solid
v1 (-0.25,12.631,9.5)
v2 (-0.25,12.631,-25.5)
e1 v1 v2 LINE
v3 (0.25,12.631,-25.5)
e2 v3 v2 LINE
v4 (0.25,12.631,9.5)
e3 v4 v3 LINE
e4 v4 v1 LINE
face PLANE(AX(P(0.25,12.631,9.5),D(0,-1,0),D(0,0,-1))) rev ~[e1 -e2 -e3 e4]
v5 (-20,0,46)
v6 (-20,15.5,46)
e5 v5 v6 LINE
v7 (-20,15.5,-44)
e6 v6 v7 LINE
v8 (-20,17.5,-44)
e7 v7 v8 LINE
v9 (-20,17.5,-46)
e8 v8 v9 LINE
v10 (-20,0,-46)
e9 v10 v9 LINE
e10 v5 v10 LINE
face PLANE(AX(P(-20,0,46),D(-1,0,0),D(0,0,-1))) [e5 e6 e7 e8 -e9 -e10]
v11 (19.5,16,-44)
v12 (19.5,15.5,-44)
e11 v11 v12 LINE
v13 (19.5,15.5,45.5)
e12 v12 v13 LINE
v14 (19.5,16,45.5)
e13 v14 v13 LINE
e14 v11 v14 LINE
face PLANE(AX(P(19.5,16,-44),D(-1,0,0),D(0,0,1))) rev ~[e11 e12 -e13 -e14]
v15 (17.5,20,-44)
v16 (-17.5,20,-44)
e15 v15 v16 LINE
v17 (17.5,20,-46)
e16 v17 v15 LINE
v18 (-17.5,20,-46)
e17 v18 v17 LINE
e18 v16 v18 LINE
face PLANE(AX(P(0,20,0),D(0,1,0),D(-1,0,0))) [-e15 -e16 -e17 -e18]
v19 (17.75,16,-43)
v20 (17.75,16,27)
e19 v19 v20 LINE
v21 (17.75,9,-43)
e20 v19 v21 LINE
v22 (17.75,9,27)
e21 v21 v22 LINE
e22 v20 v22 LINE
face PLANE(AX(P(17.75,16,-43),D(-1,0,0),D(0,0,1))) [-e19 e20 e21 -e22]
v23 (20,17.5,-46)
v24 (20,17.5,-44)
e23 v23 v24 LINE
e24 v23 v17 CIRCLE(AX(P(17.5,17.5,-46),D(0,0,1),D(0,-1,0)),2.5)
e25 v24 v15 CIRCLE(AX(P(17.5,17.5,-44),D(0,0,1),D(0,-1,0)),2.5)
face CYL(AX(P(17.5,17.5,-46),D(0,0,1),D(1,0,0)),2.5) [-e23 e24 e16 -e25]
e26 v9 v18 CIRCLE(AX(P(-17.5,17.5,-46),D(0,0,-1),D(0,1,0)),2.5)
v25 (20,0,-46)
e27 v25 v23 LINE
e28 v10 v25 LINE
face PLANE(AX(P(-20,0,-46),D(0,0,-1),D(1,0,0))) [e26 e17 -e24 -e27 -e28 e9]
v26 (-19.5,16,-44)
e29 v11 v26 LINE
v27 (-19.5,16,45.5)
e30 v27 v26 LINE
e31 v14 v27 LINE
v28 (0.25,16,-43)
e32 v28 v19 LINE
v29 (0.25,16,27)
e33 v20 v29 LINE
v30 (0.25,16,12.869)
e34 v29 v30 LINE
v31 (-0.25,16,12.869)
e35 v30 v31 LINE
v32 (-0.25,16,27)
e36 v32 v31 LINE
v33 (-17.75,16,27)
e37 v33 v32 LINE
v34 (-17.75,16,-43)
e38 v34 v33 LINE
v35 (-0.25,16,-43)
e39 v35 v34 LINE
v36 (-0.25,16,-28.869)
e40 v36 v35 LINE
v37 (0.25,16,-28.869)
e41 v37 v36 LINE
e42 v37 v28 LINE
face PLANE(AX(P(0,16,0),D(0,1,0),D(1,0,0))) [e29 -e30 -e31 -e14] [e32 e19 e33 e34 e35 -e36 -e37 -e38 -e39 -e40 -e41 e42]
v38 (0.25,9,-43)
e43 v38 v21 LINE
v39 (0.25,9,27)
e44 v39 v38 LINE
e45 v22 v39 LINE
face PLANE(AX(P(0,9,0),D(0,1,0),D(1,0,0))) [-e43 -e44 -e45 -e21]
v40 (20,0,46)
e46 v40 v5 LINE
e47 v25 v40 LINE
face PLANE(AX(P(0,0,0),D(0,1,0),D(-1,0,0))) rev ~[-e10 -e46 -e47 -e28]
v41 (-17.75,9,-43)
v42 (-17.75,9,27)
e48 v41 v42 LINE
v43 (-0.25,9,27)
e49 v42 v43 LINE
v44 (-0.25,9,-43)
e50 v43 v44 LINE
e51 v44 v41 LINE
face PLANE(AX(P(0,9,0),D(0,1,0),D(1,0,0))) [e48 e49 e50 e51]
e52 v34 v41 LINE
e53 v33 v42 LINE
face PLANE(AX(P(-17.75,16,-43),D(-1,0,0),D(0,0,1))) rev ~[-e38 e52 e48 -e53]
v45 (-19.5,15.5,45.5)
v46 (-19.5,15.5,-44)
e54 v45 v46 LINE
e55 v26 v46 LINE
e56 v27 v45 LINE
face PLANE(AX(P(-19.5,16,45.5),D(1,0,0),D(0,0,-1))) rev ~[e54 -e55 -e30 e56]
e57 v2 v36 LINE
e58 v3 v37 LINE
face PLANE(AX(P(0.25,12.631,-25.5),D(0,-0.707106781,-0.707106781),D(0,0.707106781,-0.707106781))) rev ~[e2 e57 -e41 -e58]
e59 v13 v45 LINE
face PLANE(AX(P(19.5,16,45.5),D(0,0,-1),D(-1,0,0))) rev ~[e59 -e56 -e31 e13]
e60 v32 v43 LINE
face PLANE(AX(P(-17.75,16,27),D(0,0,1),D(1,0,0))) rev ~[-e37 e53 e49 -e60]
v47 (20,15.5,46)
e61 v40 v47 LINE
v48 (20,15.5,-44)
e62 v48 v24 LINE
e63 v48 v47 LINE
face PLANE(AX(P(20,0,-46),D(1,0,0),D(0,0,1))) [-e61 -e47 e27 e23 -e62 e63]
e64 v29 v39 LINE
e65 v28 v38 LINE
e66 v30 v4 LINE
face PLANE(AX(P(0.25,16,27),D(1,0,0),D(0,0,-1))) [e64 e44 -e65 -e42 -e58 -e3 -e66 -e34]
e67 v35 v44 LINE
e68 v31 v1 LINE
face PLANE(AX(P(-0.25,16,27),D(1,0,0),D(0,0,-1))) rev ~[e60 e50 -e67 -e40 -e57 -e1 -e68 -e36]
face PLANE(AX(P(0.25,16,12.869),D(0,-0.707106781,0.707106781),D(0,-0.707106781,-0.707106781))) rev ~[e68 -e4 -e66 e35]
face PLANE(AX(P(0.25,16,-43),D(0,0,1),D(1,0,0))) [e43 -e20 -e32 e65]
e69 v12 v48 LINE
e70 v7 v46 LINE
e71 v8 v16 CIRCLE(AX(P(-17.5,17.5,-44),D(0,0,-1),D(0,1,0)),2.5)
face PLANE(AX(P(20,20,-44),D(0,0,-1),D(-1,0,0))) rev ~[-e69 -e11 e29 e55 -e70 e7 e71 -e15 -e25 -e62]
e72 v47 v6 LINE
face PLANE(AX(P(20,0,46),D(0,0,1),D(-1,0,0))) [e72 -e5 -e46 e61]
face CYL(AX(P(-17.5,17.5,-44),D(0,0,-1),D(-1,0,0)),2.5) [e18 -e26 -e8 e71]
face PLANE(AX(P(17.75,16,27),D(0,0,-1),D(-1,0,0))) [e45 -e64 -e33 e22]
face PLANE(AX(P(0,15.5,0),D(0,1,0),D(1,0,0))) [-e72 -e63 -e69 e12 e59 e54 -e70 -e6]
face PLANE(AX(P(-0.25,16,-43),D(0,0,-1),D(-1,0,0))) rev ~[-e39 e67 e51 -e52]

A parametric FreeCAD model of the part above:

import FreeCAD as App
import Part
import Sketcher
Q = App.Units.Quantity


def edges_at(feature, points):
    """Names of the edges that pass closest to the given points."""
    edges = feature.Shape.Edges
    near = lambda p: min(range(len(edges)), key=lambda i: edges[i].distToShape(Part.Vertex(*p))[0])
    return sorted({f"Edge{near(p) + 1}" for p in points})


def add_polygon(sketch, points):
    """Adds a closed chain of lines whose ends are joined by coincident constraints."""
    first, n = sketch.GeometryCount, len(points)
    for a, b in zip(points, points[1:] + points[:1]):
        sketch.addGeometry(Part.LineSegment(App.Vector(*a, 0), App.Vector(*b, 0)), False)
    for i in range(n):
        sketch.addConstraint(Sketcher.Constraint("Coincident", first + i, 2, first + (i + 1) % n, 1))

doc = App.newDocument("Part")
body = doc.addObject("PartDesign::Body", "Body")

# Sketch on XZ plane
sketch1 = doc.addObject("Sketcher::SketchObject", "Sketch")
body.addObject(sketch1)
sketch1.AttachmentSupport = (doc.XZ_Plane, [""])
sketch1.MapMode = "FlatFace"
add_polygon(sketch1, [(-20, 46), (20, 46), (20, -46), (-20, -46)])  # lines 0-3
sketch1.addConstraint([
    Sketcher.Constraint("Horizontal", 0),
    Sketcher.Constraint("Vertical", 1),
    Sketcher.Constraint("Horizontal", 2),
    Sketcher.Constraint("Vertical", 3),
    Sketcher.Constraint("Symmetric", 0, 2, 2, 2, -1, 1),
    Sketcher.Constraint("DistanceX", 0, 1, 0, 2, Q("40 mm")),
    Sketcher.Constraint("DistanceY", 1, 2, 1, 1, Q("92 mm")),
])
pad1 = doc.addObject("PartDesign::Pad", "Pad")
body.addObject(pad1)
pad1.Profile = sketch1
pad1.Length = 20
pad1.Reversed = True

# Sketch on XZ plane
sketch2 = doc.addObject("Sketcher::SketchObject", "Sketch001")
body.addObject(sketch2)
sketch2.AttachmentSupport = (doc.XZ_Plane, [""])
sketch2.MapMode = "FlatFace"
sketch2.AttachmentOffset = App.Placement(App.Vector(0, 0, -20), App.Rotation())
add_polygon(sketch2, [(20, -44), (-20, -44), (-20, 46), (20, 46)])  # lines 0-3
sketch2.addConstraint([
    Sketcher.Constraint("Horizontal", 0),
    Sketcher.Constraint("Vertical", 1),
    Sketcher.Constraint("Horizontal", 2),
    Sketcher.Constraint("Vertical", 3),
    Sketcher.Constraint("DistanceY", 1, 1, 1, 2, Q("90 mm")),
    Sketcher.Constraint("DistanceX", 0, 2, 0, 1, Q("40 mm")),
    Sketcher.Constraint("DistanceX", 0, 2, -1, 1, Q("20 mm")),
    Sketcher.Constraint("DistanceY", 0, 2, -1, 1, Q("44 mm")),
])
pocket1 = doc.addObject("PartDesign::Pocket", "Pocket")
body.addObject(pocket1)
pocket1.Profile = sketch2
pocket1.Length = 4
pocket1.Reversed = True

# Sketch on XZ plane
sketch3 = doc.addObject("Sketcher::SketchObject", "Sketch002")
body.addObject(sketch3)
sketch3.AttachmentSupport = (doc.XZ_Plane, [""])
sketch3.MapMode = "FlatFace"
sketch3.AttachmentOffset = App.Placement(App.Vector(0, 0, -16), App.Rotation())
add_polygon(sketch3, [(17.75, -43), (0.25, -43), (0.25, 27), (17.75, 27)])  # lines 0-3
add_polygon(sketch3, [(-17.75, -43), (-17.75, 27), (-0.25, 27), (-0.25, -43)])  # lines 4-7
sketch3.addConstraint([
    Sketcher.Constraint("Horizontal", 0),
    Sketcher.Constraint("Vertical", 1),
    Sketcher.Constraint("Horizontal", 2),
    Sketcher.Constraint("Vertical", 3),
    Sketcher.Constraint("Vertical", 4),
    Sketcher.Constraint("Horizontal", 5),
    Sketcher.Constraint("Vertical", 6),
    Sketcher.Constraint("Horizontal", 7),
    Sketcher.Constraint("Symmetric", 2, 2, 4, 2, -2),
    Sketcher.Constraint("Symmetric", 0, 2, 6, 2, -2),
    Sketcher.Constraint("DistanceY", 1, 1, 1, 2, Q("70 mm")),
    Sketcher.Constraint("DistanceX", 0, 2, 0, 1, Q("17.5 mm")),
    Sketcher.Constraint("DistanceY", 0, 2, -1, 1, Q("43 mm")),
    Sketcher.Constraint("DistanceX", 4, 2, 1, 2, Q("18 mm")),
])
pocket2 = doc.addObject("PartDesign::Pocket", "Pocket001")
body.addObject(pocket2)
pocket2.Profile = sketch3
pocket2.Length = 7
pocket2.Reversed = True

# Sketch on YZ plane
sketch4 = doc.addObject("Sketcher::SketchObject", "Sketch003")
body.addObject(sketch4)
sketch4.AttachmentSupport = (doc.YZ_Plane, [""])
sketch4.MapMode = "FlatFace"
sketch4.AttachmentOffset = App.Placement(App.Vector(0, 0, 0.25), App.Rotation())
add_polygon(sketch4, [(16, -28.869), (16, 12.869), (12.631, 9.5), (12.631, -25.5)])  # lines 0-3
sketch4.addConstraint([
    Sketcher.Constraint("Vertical", 0),
    Sketcher.Constraint("Vertical", 2),
    Sketcher.Constraint("Perpendicular", 1, 3),
    Sketcher.Constraint("Equal", 1, 3),
    Sketcher.Constraint("DistanceY", 2, 2, 2, 1, Q("35 mm")),
    Sketcher.Constraint("DistanceX", -1, 1, 0, 2, Q("16 mm")),
    Sketcher.Constraint("DistanceY", -1, 1, 1, 2, Q("9.5 mm")),
    Sketcher.Constraint("DistanceY", 0, 1, 0, 2, Q("41.738 mm")),
])
pocket3 = doc.addObject("PartDesign::Pocket", "Pocket002")
body.addObject(pocket3)
pocket3.Profile = sketch4
pocket3.Length = 0.5
doc.recompute()

fillet = doc.addObject("PartDesign::Fillet", "Fillet")
body.addObject(fillet)
fillet.Base = (pocket3, edges_at(pocket3, [(20, 20, -45), (-20, 20, -45)]))
fillet.Radius = 2.5

# Sketch on XZ plane
sketch5 = doc.addObject("Sketcher::SketchObject", "Sketch004")
body.addObject(sketch5)
sketch5.AttachmentSupport = (doc.XZ_Plane, [""])
sketch5.MapMode = "FlatFace"
sketch5.AttachmentOffset = App.Placement(App.Vector(0, 0, -16), App.Rotation())
add_polygon(sketch5, [(20, 46), (20, -44), (19.5, -44), (19.5, 45.5), (-19.5, 45.5), (-19.5, -44), (-20, -44), (-20, 46)])  # lines 0-7
sketch5.addConstraint([
    Sketcher.Constraint("Vertical", 0),
    Sketcher.Constraint("Horizontal", 1),
    Sketcher.Constraint("Vertical", 2),
    Sketcher.Constraint("Horizontal", 3),
    Sketcher.Constraint("Vertical", 4),
    Sketcher.Constraint("Horizontal", 5),
    Sketcher.Constraint("Vertical", 6),
    Sketcher.Constraint("Horizontal", 7),
    Sketcher.Constraint("Symmetric", 1, 2, 4, 2, -2),
    Sketcher.Constraint("Equal", 1, 5),
    Sketcher.Constraint("DistanceX", 1, 2, 1, 1, Q("0.5 mm")),
    Sketcher.Constraint("DistanceY", 3, 2, 6, 2, Q("0.5 mm")),
    Sketcher.Constraint("DistanceX", 3, 2, 3, 1, Q("39 mm")),
    Sketcher.Constraint("DistanceY", 0, 2, 0, 1, Q("90 mm")),
    Sketcher.Constraint("DistanceY", 0, 2, -1, 1, Q("44 mm")),
])
pocket4 = doc.addObject("PartDesign::Pocket", "Pocket003")
body.addObject(pocket4)
pocket4.Profile = sketch5
pocket4.Length = 0.5
pocket4.Reversed = True

doc.recompute()
